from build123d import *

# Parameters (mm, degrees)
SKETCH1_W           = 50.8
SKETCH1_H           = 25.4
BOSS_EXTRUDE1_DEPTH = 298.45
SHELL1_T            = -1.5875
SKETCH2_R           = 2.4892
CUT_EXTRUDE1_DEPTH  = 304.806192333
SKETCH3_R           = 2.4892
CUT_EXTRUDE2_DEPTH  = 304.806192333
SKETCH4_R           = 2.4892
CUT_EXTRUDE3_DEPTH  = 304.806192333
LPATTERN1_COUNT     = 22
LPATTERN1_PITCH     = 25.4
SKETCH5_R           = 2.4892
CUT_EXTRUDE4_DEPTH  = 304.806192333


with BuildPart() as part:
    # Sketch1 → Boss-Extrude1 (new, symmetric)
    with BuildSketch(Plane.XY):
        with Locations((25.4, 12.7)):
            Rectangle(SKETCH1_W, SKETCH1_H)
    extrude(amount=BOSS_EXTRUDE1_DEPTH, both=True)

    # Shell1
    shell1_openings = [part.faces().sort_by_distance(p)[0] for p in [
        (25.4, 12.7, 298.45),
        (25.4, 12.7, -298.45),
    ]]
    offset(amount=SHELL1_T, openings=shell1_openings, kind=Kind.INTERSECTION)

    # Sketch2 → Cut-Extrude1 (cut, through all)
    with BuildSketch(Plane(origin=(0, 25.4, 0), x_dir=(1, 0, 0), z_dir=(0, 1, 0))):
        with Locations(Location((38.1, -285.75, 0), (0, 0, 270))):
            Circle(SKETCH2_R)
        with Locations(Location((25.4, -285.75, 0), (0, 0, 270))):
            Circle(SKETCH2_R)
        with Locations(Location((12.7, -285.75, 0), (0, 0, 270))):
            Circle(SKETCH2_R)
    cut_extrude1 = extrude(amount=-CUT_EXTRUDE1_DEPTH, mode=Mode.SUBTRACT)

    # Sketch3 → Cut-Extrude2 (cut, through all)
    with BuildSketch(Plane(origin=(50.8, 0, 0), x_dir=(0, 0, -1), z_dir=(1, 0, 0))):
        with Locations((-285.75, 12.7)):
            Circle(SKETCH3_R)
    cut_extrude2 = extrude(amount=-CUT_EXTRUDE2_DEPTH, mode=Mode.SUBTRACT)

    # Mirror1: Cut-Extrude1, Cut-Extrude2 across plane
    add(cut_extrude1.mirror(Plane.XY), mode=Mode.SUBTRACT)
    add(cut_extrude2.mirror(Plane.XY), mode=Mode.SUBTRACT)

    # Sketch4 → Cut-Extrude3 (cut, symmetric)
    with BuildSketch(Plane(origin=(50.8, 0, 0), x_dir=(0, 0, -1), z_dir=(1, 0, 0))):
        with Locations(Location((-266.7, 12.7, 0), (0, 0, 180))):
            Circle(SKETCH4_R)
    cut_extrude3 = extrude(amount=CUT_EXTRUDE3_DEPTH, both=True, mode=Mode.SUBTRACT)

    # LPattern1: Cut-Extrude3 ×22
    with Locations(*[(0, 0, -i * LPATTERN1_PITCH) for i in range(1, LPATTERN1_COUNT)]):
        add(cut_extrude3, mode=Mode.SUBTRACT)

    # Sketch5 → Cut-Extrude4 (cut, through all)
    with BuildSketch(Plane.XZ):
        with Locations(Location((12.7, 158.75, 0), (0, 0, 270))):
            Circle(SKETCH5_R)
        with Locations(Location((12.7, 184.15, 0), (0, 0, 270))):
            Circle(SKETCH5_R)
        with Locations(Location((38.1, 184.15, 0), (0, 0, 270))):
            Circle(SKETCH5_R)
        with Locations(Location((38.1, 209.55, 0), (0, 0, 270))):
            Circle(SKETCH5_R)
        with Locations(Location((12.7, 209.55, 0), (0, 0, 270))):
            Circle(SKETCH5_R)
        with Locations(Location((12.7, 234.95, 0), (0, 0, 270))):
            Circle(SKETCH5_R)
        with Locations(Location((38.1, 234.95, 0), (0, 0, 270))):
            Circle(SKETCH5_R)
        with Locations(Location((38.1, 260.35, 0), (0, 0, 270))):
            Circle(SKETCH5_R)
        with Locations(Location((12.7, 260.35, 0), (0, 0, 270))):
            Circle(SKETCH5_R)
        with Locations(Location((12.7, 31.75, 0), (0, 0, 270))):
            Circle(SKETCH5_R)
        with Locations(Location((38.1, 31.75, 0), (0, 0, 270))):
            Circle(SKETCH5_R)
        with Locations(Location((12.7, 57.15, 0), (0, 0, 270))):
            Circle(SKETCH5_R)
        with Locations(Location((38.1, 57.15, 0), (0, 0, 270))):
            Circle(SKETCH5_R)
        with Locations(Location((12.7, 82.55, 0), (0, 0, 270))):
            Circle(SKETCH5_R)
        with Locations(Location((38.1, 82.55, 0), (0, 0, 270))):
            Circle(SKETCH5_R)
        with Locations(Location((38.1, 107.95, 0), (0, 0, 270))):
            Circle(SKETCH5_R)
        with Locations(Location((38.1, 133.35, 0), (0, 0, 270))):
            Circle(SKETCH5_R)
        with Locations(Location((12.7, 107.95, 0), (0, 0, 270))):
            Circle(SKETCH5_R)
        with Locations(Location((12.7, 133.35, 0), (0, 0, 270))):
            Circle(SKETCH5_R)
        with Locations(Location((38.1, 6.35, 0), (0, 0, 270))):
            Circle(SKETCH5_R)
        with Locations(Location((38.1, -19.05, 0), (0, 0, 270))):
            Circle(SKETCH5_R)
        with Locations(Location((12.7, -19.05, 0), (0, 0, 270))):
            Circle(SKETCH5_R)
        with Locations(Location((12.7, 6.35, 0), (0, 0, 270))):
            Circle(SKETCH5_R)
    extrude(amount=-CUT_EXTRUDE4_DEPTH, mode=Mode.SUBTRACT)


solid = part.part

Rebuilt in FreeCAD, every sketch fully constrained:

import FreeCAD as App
import Part
import Sketcher
from FreeCAD import Vector
Q = App.Units.Quantity


def faces_at(feature, points):
    """Names of the faces that lie closest to the given points."""
    faces = feature.Shape.Faces
    near = lambda p: min(range(len(faces)), key=lambda i: faces[i].distToShape(Part.Vertex(*p))[0])
    return sorted({f"Face{near(p) + 1}" for p in points})

doc = App.newDocument("Part")
body = doc.addObject("PartDesign::Body", "Body")

# Sketch on XY plane
sketch1 = body.newObject("Sketcher::SketchObject", "Sketch")
sketch1.AttachmentSupport = (doc.getObject("XY_Plane"), [""])
sketch1.MapMode = "FlatFace"
sketch1.addGeometry([
    Part.LineSegment(Vector(0, 25, 0), Vector(0, 0, 0)),
    Part.LineSegment(Vector(0, 0, 0), Vector(51, 0, 0)),
    Part.LineSegment(Vector(51, 0, 0), Vector(51, 25, 0)),
    Part.LineSegment(Vector(51, 25, 0), Vector(0, 25, 0)),
], False)
sketch1.addConstraint([
    Sketcher.Constraint("Coincident", 0, 2, 1, 1),
    Sketcher.Constraint("Coincident", 1, 2, 2, 1),
    Sketcher.Constraint("Coincident", 2, 2, 3, 1),
    Sketcher.Constraint("Coincident", 3, 2, 0, 1),
    Sketcher.Constraint("Vertical", 0),
    Sketcher.Constraint("Horizontal", 1),
    Sketcher.Constraint("Vertical", 2),
    Sketcher.Constraint("Horizontal", 3),
    Sketcher.Constraint("Coincident", 0, 2, -1, 1),
    Sketcher.Constraint("DistanceX", 1, 1, 1, 2, Q("2 in")),
    Sketcher.Constraint("DistanceY", 0, 2, 0, 1, Q("1 in")),
])
pad1 = body.newObject("PartDesign::Pad", "Pad")
pad1.Profile = sketch1
pad1.Length = Q("23.5 in")
pad1.Midplane = True
doc.recompute()

thickness = body.newObject("PartDesign::Thickness", "Thickness")
thickness.Base = (pad1, faces_at(pad1, [(25.4, 12.7, 298.45), (25.4, 12.7, -298.45)]))
thickness.Value = Q("0.0625 in")
thickness.Reversed = True
thickness.Join = "Intersection"

# Sketch on XZ plane
sketch2 = body.newObject("Sketcher::SketchObject", "Sketch001")
sketch2.AttachmentSupport = (doc.getObject("XZ_Plane"), [""])
sketch2.MapMode = "FlatFace"
sketch2.AttachmentOffset = App.Placement(Vector(0, 0, -1 * 25.4), App.Rotation())
sketch2.addGeometry([
    Part.Circle(Vector(38.1, 285.8, 0), Vector(0, 0, 1), 2.5),
    Part.Circle(Vector(25.4, 285.8, 0), Vector(0, 0, 1), 2.5),
    Part.Circle(Vector(12.7, 285.8, 0), Vector(0, 0, 1), 2.5),
], False)
sketch2.addConstraint([
    Sketcher.Constraint("Equal", 0, 1),
    Sketcher.Constraint("Equal", 1, 2),
    Sketcher.Constraint("Horizontal", 0, 3, 1, 3),
    Sketcher.Constraint("Horizontal", 1, 3, 2, 3),
    Sketcher.Constraint("Diameter", 0, Q("0.196 in")),
    Sketcher.Constraint("DistanceX", -1, 1, 1, 3, Q("1 in")),
    Sketcher.Constraint("DistanceX", 2, 3, 0, 3, Q("1 in")),
    Sketcher.Constraint("DistanceX", -1, 1, 0, 3, Q("1.5 in")),
    Sketcher.Constraint("DistanceY", -1, 1, 0, 3, Q("11.25 in")),
])
pocket1 = body.newObject("PartDesign::Pocket", "Pocket")
pocket1.Profile = sketch2
pocket1.Type = "ThroughAll"
pocket1.Reversed = True

# Sketch on YZ plane
sketch3 = body.newObject("Sketcher::SketchObject", "Sketch002")
sketch3.AttachmentSupport = (doc.getObject("YZ_Plane"), [""])
sketch3.MapMode = "FlatFace"
sketch3.AttachmentOffset = App.Placement(Vector(0, 0, 2 * 25.4), App.Rotation())
sketch3.addGeometry(Part.Circle(Vector(12.7, 285.8, 0), Vector(0, 0, 1), 2.5), False)
sketch3.addConstraint([
    Sketcher.Constraint("Diameter", 0, Q("0.196 in")),
    Sketcher.Constraint("DistanceX", -1, 1, 0, 3, Q("0.5 in")),
    Sketcher.Constraint("DistanceY", -1, 1, 0, 3, Q("11.25 in")),
])
pocket2 = body.newObject("PartDesign::Pocket", "Pocket001")
pocket2.Profile = sketch3
pocket2.Type = "ThroughAll"
doc.recompute()

mirrored = body.newObject("PartDesign::Mirrored", "Mirrored")
mirrored.Originals = [pocket1, pocket2]
mirrored.MirrorPlane = (doc.getObject("XY_Plane"), [""])
body.Tip = mirrored

# Sketch on YZ plane
sketch4 = body.newObject("Sketcher::SketchObject", "Sketch003")
sketch4.AttachmentSupport = (doc.getObject("YZ_Plane"), [""])
sketch4.MapMode = "FlatFace"
sketch4.AttachmentOffset = App.Placement(Vector(0, 0, 2 * 25.4), App.Rotation())
sketch4.addGeometry(Part.Circle(Vector(12.7, 266.7, 0), Vector(0, 0, 1), 2.5), False)
sketch4.addConstraint([
    Sketcher.Constraint("Diameter", 0, Q("0.196 in")),
    Sketcher.Constraint("DistanceX", -1, 1, 0, 3, Q("0.5 in")),
    Sketcher.Constraint("DistanceY", -1, 1, 0, 3, Q("10.5 in")),
])
pocket3 = body.newObject("PartDesign::Pocket", "Pocket002")
pocket3.Profile = sketch4
pocket3.Length = 609.612385
pocket3.Midplane = True
doc.recompute()

linearpattern = body.newObject("PartDesign::LinearPattern", "LinearPattern")
linearpattern.Originals = [pocket3]
linearpattern.Direction = (doc.getObject("Z_Axis"), [""])
linearpattern.Mode = "offset"
linearpattern.Offset = Q("1 in")
linearpattern.Occurrences = 22
linearpattern.Reversed = True
body.Tip = linearpattern

# Sketch on XZ plane
sketch5 = body.newObject("Sketcher::SketchObject", "Sketch004")
sketch5.AttachmentSupport = (doc.getObject("XZ_Plane"), [""])
sketch5.MapMode = "FlatFace"
sketch5.addGeometry([
    Part.Circle(Vector(12.7, 158.8, 0), Vector(0, 0, 1), 2.5),  # 0
    Part.Circle(Vector(12.7, 184.2, 0), Vector(0, 0, 1), 2.5),  # 1
    Part.Circle(Vector(38.1, 184.2, 0), Vector(0, 0, 1), 2.5),  # 2
    Part.Circle(Vector(38.1, 209.6, 0), Vector(0, 0, 1), 2.5),  # 3
    Part.Circle(Vector(12.7, 209.6, 0), Vector(0, 0, 1), 2.5),  # 4
    Part.Circle(Vector(12.7, 234.9, 0), Vector(0, 0, 1), 2.5),  # 5
    Part.Circle(Vector(38.1, 234.9, 0), Vector(0, 0, 1), 2.5),  # 6
    Part.Circle(Vector(38.1, 260.4, 0), Vector(0, 0, 1), 2.5),  # 7
    Part.Circle(Vector(12.7, 260.4, 0), Vector(0, 0, 1), 2.5),  # 8
    Part.Circle(Vector(12.7, 31.8, 0), Vector(0, 0, 1), 2.5),  # 9
    Part.Circle(Vector(38.1, 31.8, 0), Vector(0, 0, 1), 2.5),  # 10
    Part.Circle(Vector(12.7, 57.1, 0), Vector(0, 0, 1), 2.5),  # 11
    Part.Circle(Vector(38.1, 57.1, 0), Vector(0, 0, 1), 2.5),  # 12
    Part.Circle(Vector(12.7, 82.5, 0), Vector(0, 0, 1), 2.5),  # 13
    Part.Circle(Vector(38.1, 82.5, 0), Vector(0, 0, 1), 2.5),  # 14
    Part.Circle(Vector(38.1, 108, 0), Vector(0, 0, 1), 2.5),  # 15
    Part.Circle(Vector(38.1, 133.3, 0), Vector(0, 0, 1), 2.5),  # 16
    Part.Circle(Vector(12.7, 108, 0), Vector(0, 0, 1), 2.5),  # 17
    Part.Circle(Vector(12.7, 133.3, 0), Vector(0, 0, 1), 2.5),  # 18
    Part.Circle(Vector(38.1, 6.3, 0), Vector(0, 0, 1), 2.5),  # 19
    Part.Circle(Vector(38.1, -19.1, 0), Vector(0, 0, 1), 2.5),  # 20
    Part.Circle(Vector(12.7, -19.1, 0), Vector(0, 0, 1), 2.5),  # 21
    Part.Circle(Vector(12.7, 6.3, 0), Vector(0, 0, 1), 2.5),  # 22
], False)
sketch5.addConstraint([
    Sketcher.Constraint("Equal", 0, 1),
    Sketcher.Constraint("Equal", 1, 2),
    Sketcher.Constraint("Equal", 2, 3),
    Sketcher.Constraint("Equal", 3, 4),
    Sketcher.Constraint("Equal", 4, 5),
    Sketcher.Constraint("Equal", 5, 6),
    Sketcher.Constraint("Equal", 6, 7),
    Sketcher.Constraint("Equal", 7, 8),
    Sketcher.Constraint("Equal", 8, 9),
    Sketcher.Constraint("Equal", 9, 10),
    Sketcher.Constraint("Equal", 10, 11),
    Sketcher.Constraint("Equal", 11, 12),
    Sketcher.Constraint("Equal", 12, 13),
    Sketcher.Constraint("Equal", 13, 14),
    Sketcher.Constraint("Equal", 14, 15),
    Sketcher.Constraint("Equal", 15, 16),
    Sketcher.Constraint("Equal", 16, 17),
    Sketcher.Constraint("Equal", 17, 18),
    Sketcher.Constraint("Equal", 18, 19),
    Sketcher.Constraint("Equal", 19, 20),
    Sketcher.Constraint("Equal", 20, 21),
    Sketcher.Constraint("Equal", 21, 22),
    Sketcher.Constraint("Horizontal", 1, 3, 2, 3),
    Sketcher.Constraint("Horizontal", 3, 3, 4, 3),
    Sketcher.Constraint("Horizontal", 5, 3, 6, 3),
    Sketcher.Constraint("Horizontal", 7, 3, 8, 3),
    Sketcher.Constraint("Horizontal", 9, 3, 10, 3),
    Sketcher.Constraint("Horizontal", 11, 3, 12, 3),
    Sketcher.Constraint("Horizontal", 13, 3, 14, 3),
    Sketcher.Constraint("Horizontal", 15, 3, 17, 3),
    Sketcher.Constraint("Horizontal", 16, 3, 18, 3),
    Sketcher.Constraint("Horizontal", 20, 3, 21, 3),
    Sketcher.Constraint("Horizontal", 19, 3, 22, 3),
    Sketcher.Constraint("Vertical", 0, 3, 1, 3),
    Sketcher.Constraint("Vertical", 2, 3, 3, 3),
    Sketcher.Constraint("Vertical", 1, 3, 4, 3),
    Sketcher.Constraint("Vertical", 4, 3, 5, 3),
    Sketcher.Constraint("Vertical", 3, 3, 6, 3),
    Sketcher.Constraint("Vertical", 6, 3, 7, 3),
    Sketcher.Constraint("Vertical", 5, 3, 8, 3),
    Sketcher.Constraint("Vertical", 8, 3, 9, 3),
    Sketcher.Constraint("Vertical", 7, 3, 10, 3),
    Sketcher.Constraint("Vertical", 9, 3, 11, 3),
    Sketcher.Constraint("Vertical", 10, 3, 12, 3),
    Sketcher.Constraint("Vertical", 11, 3, 13, 3),
    Sketcher.Constraint("Vertical", 12, 3, 14, 3),
    Sketcher.Constraint("Vertical", 14, 3, 15, 3),
    Sketcher.Constraint("Vertical", 15, 3, 16, 3),
    Sketcher.Constraint("Vertical", 13, 3, 17, 3),
    Sketcher.Constraint("Vertical", 17, 3, 18, 3),
    Sketcher.Constraint("Vertical", 16, 3, 19, 3),
    Sketcher.Constraint("Vertical", 19, 3, 20, 3),
    Sketcher.Constraint("Vertical", 18, 3, 21, 3),
    Sketcher.Constraint("Vertical", 21, 3, 22, 3),
    Sketcher.Constraint("Diameter", 0, Q("0.196 in")),
    Sketcher.Constraint("DistanceY", 0, 3, 1, 3, Q("1 in")),
    Sketcher.Constraint("DistanceX", 1, 3, 2, 3, Q("1 in")),
    Sketcher.Constraint("DistanceY", 2, 3, 3, 3, Q("1 in")),
    Sketcher.Constraint("DistanceY", 4, 3, 5, 3, Q("1 in")),
    Sketcher.Constraint("DistanceY", 6, 3, 7, 3, Q("1 in")),
    Sketcher.Constraint("DistanceY", 9, 3, 0, 3, Q("5 in")),
    Sketcher.Constraint("DistanceY", 9, 3, 11, 3, Q("1 in")),
    Sketcher.Constraint("DistanceY", 11, 3, 13, 3, Q("1 in")),
    Sketcher.Constraint("DistanceY", 14, 3, 15, 3, Q("1 in")),
    Sketcher.Constraint("DistanceY", 15, 3, 16, 3, Q("1 in")),
    Sketcher.Constraint("DistanceY", 19, 3, 10, 3, Q("1 in")),
    Sketcher.Constraint("DistanceY", 20, 3, 19, 3, Q("1 in")),
    Sketcher.Constraint("DistanceX", -1, 1, 0, 3, Q("0.5 in")),
    Sketcher.Constraint("DistanceY", -1, 1, 0, 3, Q("6.25 in")),
])
pocket4 = body.newObject("PartDesign::Pocket", "Pocket003")
pocket4.Profile = sketch5
pocket4.Type = "ThroughAll"

doc.recompute()
